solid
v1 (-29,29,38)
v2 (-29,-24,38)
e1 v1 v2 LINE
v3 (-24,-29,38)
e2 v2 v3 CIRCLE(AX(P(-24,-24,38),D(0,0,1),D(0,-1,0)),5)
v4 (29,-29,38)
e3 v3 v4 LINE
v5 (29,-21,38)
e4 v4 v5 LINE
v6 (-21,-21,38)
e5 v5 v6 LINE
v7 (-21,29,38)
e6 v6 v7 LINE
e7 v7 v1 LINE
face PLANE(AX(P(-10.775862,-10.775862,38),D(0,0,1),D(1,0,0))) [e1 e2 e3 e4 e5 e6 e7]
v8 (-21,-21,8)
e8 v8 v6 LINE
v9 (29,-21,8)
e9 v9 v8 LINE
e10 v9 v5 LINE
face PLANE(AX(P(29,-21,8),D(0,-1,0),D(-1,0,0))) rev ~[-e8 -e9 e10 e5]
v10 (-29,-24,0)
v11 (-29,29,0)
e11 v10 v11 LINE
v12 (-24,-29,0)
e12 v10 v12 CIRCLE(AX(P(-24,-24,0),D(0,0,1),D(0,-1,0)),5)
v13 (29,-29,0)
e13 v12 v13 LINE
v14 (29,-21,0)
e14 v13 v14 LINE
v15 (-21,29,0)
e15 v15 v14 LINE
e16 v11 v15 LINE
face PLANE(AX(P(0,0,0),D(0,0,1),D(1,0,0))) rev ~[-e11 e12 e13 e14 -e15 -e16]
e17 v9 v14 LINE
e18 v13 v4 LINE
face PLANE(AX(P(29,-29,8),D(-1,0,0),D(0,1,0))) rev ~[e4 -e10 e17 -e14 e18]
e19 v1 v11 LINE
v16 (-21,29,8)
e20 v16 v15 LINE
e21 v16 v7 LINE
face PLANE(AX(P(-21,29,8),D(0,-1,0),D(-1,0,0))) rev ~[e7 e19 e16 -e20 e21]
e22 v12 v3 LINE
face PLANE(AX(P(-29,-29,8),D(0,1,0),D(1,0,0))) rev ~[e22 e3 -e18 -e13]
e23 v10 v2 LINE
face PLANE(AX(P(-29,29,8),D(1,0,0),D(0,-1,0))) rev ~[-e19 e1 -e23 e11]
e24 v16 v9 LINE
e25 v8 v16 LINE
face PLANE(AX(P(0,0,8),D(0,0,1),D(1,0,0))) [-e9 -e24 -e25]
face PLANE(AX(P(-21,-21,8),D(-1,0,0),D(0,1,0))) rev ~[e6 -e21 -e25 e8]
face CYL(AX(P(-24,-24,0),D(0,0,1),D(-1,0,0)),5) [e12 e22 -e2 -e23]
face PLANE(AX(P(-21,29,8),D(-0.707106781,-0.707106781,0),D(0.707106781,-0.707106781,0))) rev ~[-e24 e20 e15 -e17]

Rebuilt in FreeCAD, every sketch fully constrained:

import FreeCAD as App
import Part
import Sketcher
Q = App.Units.Quantity


def edges_at(feature, points):
    """Names of the edges that pass closest to the given points."""
    edges = feature.Shape.Edges
    near = lambda p: min(range(len(edges)), key=lambda i: edges[i].distToShape(Part.Vertex(*p))[0])
    return sorted({f"Edge{near(p) + 1}" for p in points})

doc = App.newDocument("Part")
params = doc.addObject("Spreadsheet::Sheet", "Params")
for row, (alias, value) in enumerate([
    ("sketch1_width", "58 mm"),
    ("pad1_length", "8 mm"),
    ("sketch2_width", "58 mm"),
    ("sketch2_width2", "50 mm"),
    ("pad2_length", "30 mm"),
    ("sketch3_width", "50 mm"),
    ("fillet_radius", "5 mm"),
], start=1):
    params.set(f"A{row}", alias)
    params.set(f"B{row}", "=" + value)
    params.setAlias(f"B{row}", alias)

body = doc.addObject("PartDesign::Body", "Body")

# Sketch on XY plane
sketch1 = body.newObject("Sketcher::SketchObject", "Sketch")
sketch1.AttachmentSupport = (doc.getObject("XY_Plane"), [""])
sketch1.MapMode = "FlatFace"
sketch1.addGeometry(Part.LineSegment(App.Vector(-29, 29, 0), App.Vector(-29, -29, 0)), False)
sketch1.addGeometry(Part.LineSegment(App.Vector(-29, -29, 0), App.Vector(29, -29, 0)), False)
sketch1.addGeometry(Part.LineSegment(App.Vector(29, -29, 0), App.Vector(29, 29, 0)), False)
sketch1.addGeometry(Part.LineSegment(App.Vector(29, 29, 0), App.Vector(-29, 29, 0)), False)
sketch1.addConstraint(Sketcher.Constraint("Coincident", 0, 2, 1, 1))
sketch1.addConstraint(Sketcher.Constraint("Coincident", 1, 2, 2, 1))
sketch1.addConstraint(Sketcher.Constraint("Coincident", 2, 2, 3, 1))
sketch1.addConstraint(Sketcher.Constraint("Coincident", 3, 2, 0, 1))
sketch1.addConstraint(Sketcher.Constraint("Vertical", 0))
sketch1.addConstraint(Sketcher.Constraint("Horizontal", 1))
sketch1.addConstraint(Sketcher.Constraint("Vertical", 2))
sketch1.addConstraint(Sketcher.Constraint("Horizontal", 3))
sketch1.addConstraint(Sketcher.Constraint("Symmetric", 0, 2, 2, 2, -1, 1))
sketch1.addConstraint(Sketcher.Constraint("Equal", 3, 0))
sketch1.addConstraint(Sketcher.Constraint("DistanceX", 1, 1, 1, 2, Q("58 mm")))
sketch1.setExpression("Constraints[10]", "Params.sketch1_width")
pad1 = body.newObject("PartDesign::Pad", "Pad")
pad1.Profile = sketch1
pad1.setExpression("Length", "Params.pad1_length")

# Sketch on XY plane
sketch2 = body.newObject("Sketcher::SketchObject", "Sketch001")
sketch2.AttachmentSupport = (doc.getObject("XY_Plane"), [""])
sketch2.MapMode = "FlatFace"
sketch2.AttachmentOffset = App.Placement(App.Vector(0, 0, 8), App.Rotation())
sketch2.addGeometry(Part.LineSegment(App.Vector(-29, 29, 0), App.Vector(-29, -29, 0)), False)
sketch2.addGeometry(Part.LineSegment(App.Vector(-29, -29, 0), App.Vector(29, -29, 0)), False)
sketch2.addGeometry(Part.LineSegment(App.Vector(29, -29, 0), App.Vector(29, -21, 0)), False)
sketch2.addGeometry(Part.LineSegment(App.Vector(29, -21, 0), App.Vector(-21, -21, 0)), False)
sketch2.addGeometry(Part.LineSegment(App.Vector(-21, -21, 0), App.Vector(-21, 29, 0)), False)
sketch2.addGeometry(Part.LineSegment(App.Vector(-21, 29, 0), App.Vector(-29, 29, 0)), False)
sketch2.addConstraint(Sketcher.Constraint("Coincident", 0, 2, 1, 1))
sketch2.addConstraint(Sketcher.Constraint("Coincident", 1, 2, 2, 1))
sketch2.addConstraint(Sketcher.Constraint("Coincident", 2, 2, 3, 1))
sketch2.addConstraint(Sketcher.Constraint("Coincident", 3, 2, 4, 1))
sketch2.addConstraint(Sketcher.Constraint("Coincident", 4, 2, 5, 1))
sketch2.addConstraint(Sketcher.Constraint("Coincident", 5, 2, 0, 1))
sketch2.addConstraint(Sketcher.Constraint("Vertical", 0))
sketch2.addConstraint(Sketcher.Constraint("Horizontal", 1))
sketch2.addConstraint(Sketcher.Constraint("Vertical", 2))
sketch2.addConstraint(Sketcher.Constraint("Horizontal", 3))
sketch2.addConstraint(Sketcher.Constraint("Vertical", 4))
sketch2.addConstraint(Sketcher.Constraint("Horizontal", 5))
sketch2.addConstraint(Sketcher.Constraint("Symmetric", 1, 2, 5, 2, -1, 1))
sketch2.addConstraint(Sketcher.Constraint("Equal", 1, 0))
sketch2.addConstraint(Sketcher.Constraint("Equal", 5, 2))
sketch2.addConstraint(Sketcher.Constraint("DistanceX", 1, 1, 1, 2, Q("58 mm")))
sketch2.addConstraint(Sketcher.Constraint("DistanceX", 3, 2, 3, 1, Q("50 mm")))
sketch2.setExpression("Constraints[15]", "Params.sketch2_width")
sketch2.setExpression("Constraints[16]", "Params.sketch2_width2")
pad2 = body.newObject("PartDesign::Pad", "Pad001")
pad2.Profile = sketch2
pad2.setExpression("Length", "Params.pad2_length")

# Sketch on XY plane
sketch3 = body.newObject("Sketcher::SketchObject", "Sketch002")
sketch3.AttachmentSupport = (doc.getObject("XY_Plane"), [""])
sketch3.MapMode = "FlatFace"
sketch3.AttachmentOffset = App.Placement(App.Vector(0, 0, 8), App.Rotation())
sketch3.addGeometry(Part.LineSegment(App.Vector(29, 29, 0), App.Vector(-21, 29, 0)), False)
sketch3.addGeometry(Part.LineSegment(App.Vector(-21, 29, 0), App.Vector(29, -21, 0)), False)
sketch3.addGeometry(Part.LineSegment(App.Vector(29, -21, 0), App.Vector(29, 29, 0)), False)
sketch3.addConstraint(Sketcher.Constraint("Coincident", 0, 2, 1, 1))
sketch3.addConstraint(Sketcher.Constraint("Coincident", 1, 2, 2, 1))
sketch3.addConstraint(Sketcher.Constraint("Coincident", 2, 2, 0, 1))
sketch3.addConstraint(Sketcher.Constraint("Horizontal", 0))
sketch3.addConstraint(Sketcher.Constraint("Vertical", 2))
sketch3.addConstraint(Sketcher.Constraint("Equal", 0, 2))
sketch3.addConstraint(Sketcher.Constraint("DistanceX", 0, 2, 0, 1, Q("50 mm")))
sketch3.addConstraint(Sketcher.Constraint("DistanceX", 0, 2, -1, 1, Q("21 mm")))
sketch3.addConstraint(Sketcher.Constraint("DistanceY", -1, 1, 0, 2, Q("29 mm")))
sketch3.setExpression("Constraints[6]", "Params.sketch3_width")
pocket1 = body.newObject("PartDesign::Pocket", "Pocket")
pocket1.Profile = sketch3
pocket1.Type = "ThroughAll"
doc.recompute()

fillet = body.newObject("PartDesign::Fillet", "Fillet")
fillet.Base = (pocket1, edges_at(pocket1, [(-29, -29, 19)]))
fillet.setExpression("Radius", "Params.fillet_radius")

doc.recompute()
